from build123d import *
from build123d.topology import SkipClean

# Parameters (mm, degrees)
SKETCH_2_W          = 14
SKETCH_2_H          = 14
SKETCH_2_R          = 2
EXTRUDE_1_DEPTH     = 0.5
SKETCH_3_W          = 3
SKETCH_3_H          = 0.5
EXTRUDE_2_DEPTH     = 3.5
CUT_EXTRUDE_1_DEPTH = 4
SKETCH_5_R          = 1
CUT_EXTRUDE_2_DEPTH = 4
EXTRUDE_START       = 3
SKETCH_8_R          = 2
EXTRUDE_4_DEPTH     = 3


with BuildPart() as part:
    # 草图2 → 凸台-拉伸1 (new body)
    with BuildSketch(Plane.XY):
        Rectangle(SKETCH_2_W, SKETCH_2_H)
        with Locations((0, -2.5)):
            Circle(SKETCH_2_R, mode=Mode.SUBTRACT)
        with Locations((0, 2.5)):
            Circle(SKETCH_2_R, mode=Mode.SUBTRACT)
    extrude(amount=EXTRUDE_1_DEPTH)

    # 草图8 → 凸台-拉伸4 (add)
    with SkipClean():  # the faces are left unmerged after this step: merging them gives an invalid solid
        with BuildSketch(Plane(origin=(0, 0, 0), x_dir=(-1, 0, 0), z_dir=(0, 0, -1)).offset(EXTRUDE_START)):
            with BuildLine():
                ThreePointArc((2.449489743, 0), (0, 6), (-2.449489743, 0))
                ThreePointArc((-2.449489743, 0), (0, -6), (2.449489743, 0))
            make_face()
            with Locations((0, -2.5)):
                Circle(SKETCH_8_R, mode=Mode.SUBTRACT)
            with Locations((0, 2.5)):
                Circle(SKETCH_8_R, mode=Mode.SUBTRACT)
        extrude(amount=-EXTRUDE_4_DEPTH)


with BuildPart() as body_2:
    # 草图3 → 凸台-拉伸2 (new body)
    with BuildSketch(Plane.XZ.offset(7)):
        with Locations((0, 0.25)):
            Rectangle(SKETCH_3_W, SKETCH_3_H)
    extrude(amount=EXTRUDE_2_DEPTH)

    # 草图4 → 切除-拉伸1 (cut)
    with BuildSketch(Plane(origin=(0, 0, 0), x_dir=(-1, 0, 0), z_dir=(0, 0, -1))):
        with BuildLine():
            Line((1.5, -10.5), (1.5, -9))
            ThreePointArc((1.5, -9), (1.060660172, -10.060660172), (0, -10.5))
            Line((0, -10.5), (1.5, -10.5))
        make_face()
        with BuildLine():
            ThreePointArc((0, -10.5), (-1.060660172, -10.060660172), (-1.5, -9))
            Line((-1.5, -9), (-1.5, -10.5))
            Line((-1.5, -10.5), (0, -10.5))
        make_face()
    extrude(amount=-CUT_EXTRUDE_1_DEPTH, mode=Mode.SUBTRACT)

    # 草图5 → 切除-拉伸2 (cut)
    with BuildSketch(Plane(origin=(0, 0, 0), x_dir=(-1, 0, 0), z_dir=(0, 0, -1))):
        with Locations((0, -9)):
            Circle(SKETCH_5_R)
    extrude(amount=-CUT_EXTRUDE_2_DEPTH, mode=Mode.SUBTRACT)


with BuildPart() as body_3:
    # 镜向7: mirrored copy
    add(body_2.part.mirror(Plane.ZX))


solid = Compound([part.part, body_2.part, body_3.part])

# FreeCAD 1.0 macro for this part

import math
import FreeCAD as App
import Part
import Sketcher

doc = App.newDocument("Part")
body = doc.addObject("PartDesign::Body", "Body")

sketch1 = body.newObject("Sketcher::SketchObject", "Sketch")
sketch1.AttachmentSupport = (doc.getObject("XY_Plane"), [""])
sketch1.MapMode = "FlatFace"
sketch1.addGeometry([
    Part.LineSegment(App.Vector(-7, 7, 0), App.Vector(-7, -7, 0)),
    Part.LineSegment(App.Vector(-7, -7, 0), App.Vector(7, -7, 0)),
    Part.LineSegment(App.Vector(7, -7, 0), App.Vector(7, 7, 0)),
    Part.LineSegment(App.Vector(7, 7, 0), App.Vector(-7, 7, 0)),
    Part.Circle(App.Vector(0, -2.5, 0), App.Vector(0, 0, 1), 2),
    Part.Circle(App.Vector(0, 2.5, 0), App.Vector(0, 0, 1), 2),
], False)
sketch1.addConstraint([
    Sketcher.Constraint("Coincident", 0, 2, 1, 1),
    Sketcher.Constraint("Coincident", 1, 2, 2, 1),
    Sketcher.Constraint("Coincident", 2, 2, 3, 1),
    Sketcher.Constraint("Coincident", 3, 2, 0, 1),
    Sketcher.Constraint("Vertical", 0),
    Sketcher.Constraint("Horizontal", 1),
    Sketcher.Constraint("Vertical", 2),
    Sketcher.Constraint("Horizontal", 3),
    Sketcher.Constraint("Equal", 4, 5),
    Sketcher.Constraint("Symmetric", 4, 3, 5, 3, -1, 1),
    Sketcher.Constraint("Symmetric", 0, 2, 2, 2, -1, 1),
    Sketcher.Constraint("PointOnObject", 4, 3, -2),
    Sketcher.Constraint("Equal", 3, 0),
    Sketcher.Constraint("Diameter", 4, 4.0),
    Sketcher.Constraint("DistanceX", 1, 1, 1, 2, 14.0),
    Sketcher.Constraint("DistanceY", 4, 3, 5, 3, 5.0),
])
pad1 = body.newObject("PartDesign::Pad", "Pad")
pad1.Profile = sketch1
pad1.Length = 0.5

sketch2 = body.newObject("Sketcher::SketchObject", "Sketch001")
sketch2.AttachmentSupport = (doc.getObject("XY_Plane"), [""])
sketch2.MapMode = "FlatFace"
sketch2.AttachmentOffset = App.Placement(App.Vector(0, 0, -3), App.Rotation())
sketch2.addGeometry([
    Part.ArcOfCircle(Part.Circle(App.Vector(0, 2.5, 0), App.Vector(0, 0, 1), 3.5), math.radians(-46), math.radians(226)),
    Part.ArcOfCircle(Part.Circle(App.Vector(0, -2.5, 0), App.Vector(0, 0, 1), 3.5), math.radians(134), math.radians(406)),
    Part.Circle(App.Vector(0, -2.5, 0), App.Vector(0, 0, 1), 2),
    Part.Circle(App.Vector(0, 2.5, 0), App.Vector(0, 0, 1), 2),
], False)
sketch2.addConstraint([
    Sketcher.Constraint("Coincident", 0, 1, 1, 2),
    Sketcher.Constraint("Coincident", 1, 1, 0, 2),
    Sketcher.Constraint("Coincident", 2, 3, 1, 3),
    Sketcher.Constraint("Coincident", 3, 3, 0, 3),
    Sketcher.Constraint("Equal", 0, 1),
    Sketcher.Constraint("Equal", 2, 3),
    Sketcher.Constraint("Symmetric", 0, 3, 1, 3, -1, 1),
    Sketcher.Constraint("PointOnObject", 0, 3, -2),
    Sketcher.Constraint("Diameter", 2, 4.0),
    Sketcher.Constraint("Radius", 0, 3.5),
    Sketcher.Constraint("DistanceY", 1, 3, 0, 3, 5.0),
])
pad2 = body.newObject("PartDesign::Pad", "Pad001")
pad2.Profile = sketch2
pad2.Length = 3
body2 = doc.addObject("PartDesign::Body", "Body001")

sketch3 = body2.newObject("Sketcher::SketchObject", "Sketch002")
sketch3.AttachmentSupport = (doc.getObject("XZ_Plane001"), [""])
sketch3.MapMode = "FlatFace"
sketch3.AttachmentOffset = App.Placement(App.Vector(0, 0, 7), App.Rotation())
sketch3.addGeometry([
    Part.LineSegment(App.Vector(-1.5, 0.5, 0), App.Vector(-1.5, 0, 0)),
    Part.LineSegment(App.Vector(-1.5, 0, 0), App.Vector(1.5, 0, 0)),
    Part.LineSegment(App.Vector(1.5, 0, 0), App.Vector(1.5, 0.5, 0)),
    Part.LineSegment(App.Vector(1.5, 0.5, 0), App.Vector(-1.5, 0.5, 0)),
], False)
sketch3.addConstraint([
    Sketcher.Constraint("Coincident", 0, 2, 1, 1),
    Sketcher.Constraint("Coincident", 1, 2, 2, 1),
    Sketcher.Constraint("Coincident", 2, 2, 3, 1),
    Sketcher.Constraint("Coincident", 3, 2, 0, 1),
    Sketcher.Constraint("Vertical", 0),
    Sketcher.Constraint("Horizontal", 1),
    Sketcher.Constraint("Vertical", 2),
    Sketcher.Constraint("Horizontal", 3),
    Sketcher.Constraint("Symmetric", 0, 2, 1, 2, -1, 1),
    Sketcher.Constraint("DistanceX", 1, 1, 1, 2, 3.0),
    Sketcher.Constraint("DistanceY", 0, 2, 0, 1, 0.5),
])
pad3 = body2.newObject("PartDesign::Pad", "Pad002")
pad3.Profile = sketch3
pad3.Length = 3.5

sketch4 = body2.newObject("Sketcher::SketchObject", "Sketch003")
sketch4.AttachmentSupport = (doc.getObject("XY_Plane001"), [""])
sketch4.MapMode = "FlatFace"
sketch4.addGeometry([
    Part.LineSegment(App.Vector(-1.5, -10.5, 0), App.Vector(-1.5, -9, 0)),
    Part.ArcOfCircle(Part.Circle(App.Vector(0, -9, 0), App.Vector(0, 0, 1), 1.5), math.radians(180), math.radians(270)),
    Part.LineSegment(App.Vector(0, -10.5, 0), App.Vector(-1.5, -10.5, 0)),
    Part.ArcOfCircle(Part.Circle(App.Vector(0, -9, 0), App.Vector(0, 0, 1), 1.5), math.radians(-90), math.radians(0)),
    Part.LineSegment(App.Vector(1.5, -9, 0), App.Vector(1.5, -10.5, 0)),
    Part.LineSegment(App.Vector(1.5, -10.5, 0), App.Vector(0, -10.5, 0)),
], False)
sketch4.addConstraint([
    Sketcher.Constraint("Tangent", 0, 2, 1, 1),
    Sketcher.Constraint("Tangent", 1, 2, 2, 1),
    Sketcher.Constraint("Coincident", 2, 2, 0, 1),
    Sketcher.Constraint("Tangent", 3, 2, 4, 1),
    Sketcher.Constraint("Coincident", 4, 2, 5, 1),
    Sketcher.Constraint("Tangent", 5, 2, 3, 1),
    Sketcher.Constraint("Vertical", 0),
    Sketcher.Constraint("Horizontal", 2),
    Sketcher.Constraint("Vertical", 4),
    Sketcher.Constraint("Horizontal", 5),
    Sketcher.Constraint("Coincident", 3, 3, 1, 3),
    Sketcher.Constraint("Equal", 1, 3),
    Sketcher.Constraint("PointOnObject", 1, 3, -2),
    Sketcher.Constraint("Radius", 1, 1.5),
    Sketcher.Constraint("DistanceY", 1, 3, -1, 1, 9.0),
])
pocket1 = body2.newObject("PartDesign::Pocket", "Pocket")
pocket1.Profile = sketch4
pocket1.Length = 4
pocket1.Reversed = True

sketch5 = body2.newObject("Sketcher::SketchObject", "Sketch004")
sketch5.AttachmentSupport = (doc.getObject("XY_Plane001"), [""])
sketch5.MapMode = "FlatFace"
sketch5.addGeometry(Part.Circle(App.Vector(0, -9, 0), App.Vector(0, 0, 1), 1), False)
sketch5.addConstraint([
    Sketcher.Constraint("PointOnObject", 0, 3, -2),
    Sketcher.Constraint("Diameter", 0, 2.0),
    Sketcher.Constraint("DistanceY", 0, 3, -1, 1, 9.0),
])
pocket2 = body2.newObject("PartDesign::Pocket", "Pocket001")
pocket2.Profile = sketch5
pocket2.Length = 4
pocket2.Reversed = True
body3 = doc.addObject("PartDesign::Body", "Body002")
doc.recompute()

mirroring = doc.addObject("Part::Mirroring", "Mirroring")
mirroring.Source = body2
mirroring.Base = App.Vector(0, 0, 0)
mirroring.Normal = App.Vector(0, 1, 0)
body3.BaseFeature = mirroring
doc.recompute()
mirroring.Visibility = False

doc.recompute()
